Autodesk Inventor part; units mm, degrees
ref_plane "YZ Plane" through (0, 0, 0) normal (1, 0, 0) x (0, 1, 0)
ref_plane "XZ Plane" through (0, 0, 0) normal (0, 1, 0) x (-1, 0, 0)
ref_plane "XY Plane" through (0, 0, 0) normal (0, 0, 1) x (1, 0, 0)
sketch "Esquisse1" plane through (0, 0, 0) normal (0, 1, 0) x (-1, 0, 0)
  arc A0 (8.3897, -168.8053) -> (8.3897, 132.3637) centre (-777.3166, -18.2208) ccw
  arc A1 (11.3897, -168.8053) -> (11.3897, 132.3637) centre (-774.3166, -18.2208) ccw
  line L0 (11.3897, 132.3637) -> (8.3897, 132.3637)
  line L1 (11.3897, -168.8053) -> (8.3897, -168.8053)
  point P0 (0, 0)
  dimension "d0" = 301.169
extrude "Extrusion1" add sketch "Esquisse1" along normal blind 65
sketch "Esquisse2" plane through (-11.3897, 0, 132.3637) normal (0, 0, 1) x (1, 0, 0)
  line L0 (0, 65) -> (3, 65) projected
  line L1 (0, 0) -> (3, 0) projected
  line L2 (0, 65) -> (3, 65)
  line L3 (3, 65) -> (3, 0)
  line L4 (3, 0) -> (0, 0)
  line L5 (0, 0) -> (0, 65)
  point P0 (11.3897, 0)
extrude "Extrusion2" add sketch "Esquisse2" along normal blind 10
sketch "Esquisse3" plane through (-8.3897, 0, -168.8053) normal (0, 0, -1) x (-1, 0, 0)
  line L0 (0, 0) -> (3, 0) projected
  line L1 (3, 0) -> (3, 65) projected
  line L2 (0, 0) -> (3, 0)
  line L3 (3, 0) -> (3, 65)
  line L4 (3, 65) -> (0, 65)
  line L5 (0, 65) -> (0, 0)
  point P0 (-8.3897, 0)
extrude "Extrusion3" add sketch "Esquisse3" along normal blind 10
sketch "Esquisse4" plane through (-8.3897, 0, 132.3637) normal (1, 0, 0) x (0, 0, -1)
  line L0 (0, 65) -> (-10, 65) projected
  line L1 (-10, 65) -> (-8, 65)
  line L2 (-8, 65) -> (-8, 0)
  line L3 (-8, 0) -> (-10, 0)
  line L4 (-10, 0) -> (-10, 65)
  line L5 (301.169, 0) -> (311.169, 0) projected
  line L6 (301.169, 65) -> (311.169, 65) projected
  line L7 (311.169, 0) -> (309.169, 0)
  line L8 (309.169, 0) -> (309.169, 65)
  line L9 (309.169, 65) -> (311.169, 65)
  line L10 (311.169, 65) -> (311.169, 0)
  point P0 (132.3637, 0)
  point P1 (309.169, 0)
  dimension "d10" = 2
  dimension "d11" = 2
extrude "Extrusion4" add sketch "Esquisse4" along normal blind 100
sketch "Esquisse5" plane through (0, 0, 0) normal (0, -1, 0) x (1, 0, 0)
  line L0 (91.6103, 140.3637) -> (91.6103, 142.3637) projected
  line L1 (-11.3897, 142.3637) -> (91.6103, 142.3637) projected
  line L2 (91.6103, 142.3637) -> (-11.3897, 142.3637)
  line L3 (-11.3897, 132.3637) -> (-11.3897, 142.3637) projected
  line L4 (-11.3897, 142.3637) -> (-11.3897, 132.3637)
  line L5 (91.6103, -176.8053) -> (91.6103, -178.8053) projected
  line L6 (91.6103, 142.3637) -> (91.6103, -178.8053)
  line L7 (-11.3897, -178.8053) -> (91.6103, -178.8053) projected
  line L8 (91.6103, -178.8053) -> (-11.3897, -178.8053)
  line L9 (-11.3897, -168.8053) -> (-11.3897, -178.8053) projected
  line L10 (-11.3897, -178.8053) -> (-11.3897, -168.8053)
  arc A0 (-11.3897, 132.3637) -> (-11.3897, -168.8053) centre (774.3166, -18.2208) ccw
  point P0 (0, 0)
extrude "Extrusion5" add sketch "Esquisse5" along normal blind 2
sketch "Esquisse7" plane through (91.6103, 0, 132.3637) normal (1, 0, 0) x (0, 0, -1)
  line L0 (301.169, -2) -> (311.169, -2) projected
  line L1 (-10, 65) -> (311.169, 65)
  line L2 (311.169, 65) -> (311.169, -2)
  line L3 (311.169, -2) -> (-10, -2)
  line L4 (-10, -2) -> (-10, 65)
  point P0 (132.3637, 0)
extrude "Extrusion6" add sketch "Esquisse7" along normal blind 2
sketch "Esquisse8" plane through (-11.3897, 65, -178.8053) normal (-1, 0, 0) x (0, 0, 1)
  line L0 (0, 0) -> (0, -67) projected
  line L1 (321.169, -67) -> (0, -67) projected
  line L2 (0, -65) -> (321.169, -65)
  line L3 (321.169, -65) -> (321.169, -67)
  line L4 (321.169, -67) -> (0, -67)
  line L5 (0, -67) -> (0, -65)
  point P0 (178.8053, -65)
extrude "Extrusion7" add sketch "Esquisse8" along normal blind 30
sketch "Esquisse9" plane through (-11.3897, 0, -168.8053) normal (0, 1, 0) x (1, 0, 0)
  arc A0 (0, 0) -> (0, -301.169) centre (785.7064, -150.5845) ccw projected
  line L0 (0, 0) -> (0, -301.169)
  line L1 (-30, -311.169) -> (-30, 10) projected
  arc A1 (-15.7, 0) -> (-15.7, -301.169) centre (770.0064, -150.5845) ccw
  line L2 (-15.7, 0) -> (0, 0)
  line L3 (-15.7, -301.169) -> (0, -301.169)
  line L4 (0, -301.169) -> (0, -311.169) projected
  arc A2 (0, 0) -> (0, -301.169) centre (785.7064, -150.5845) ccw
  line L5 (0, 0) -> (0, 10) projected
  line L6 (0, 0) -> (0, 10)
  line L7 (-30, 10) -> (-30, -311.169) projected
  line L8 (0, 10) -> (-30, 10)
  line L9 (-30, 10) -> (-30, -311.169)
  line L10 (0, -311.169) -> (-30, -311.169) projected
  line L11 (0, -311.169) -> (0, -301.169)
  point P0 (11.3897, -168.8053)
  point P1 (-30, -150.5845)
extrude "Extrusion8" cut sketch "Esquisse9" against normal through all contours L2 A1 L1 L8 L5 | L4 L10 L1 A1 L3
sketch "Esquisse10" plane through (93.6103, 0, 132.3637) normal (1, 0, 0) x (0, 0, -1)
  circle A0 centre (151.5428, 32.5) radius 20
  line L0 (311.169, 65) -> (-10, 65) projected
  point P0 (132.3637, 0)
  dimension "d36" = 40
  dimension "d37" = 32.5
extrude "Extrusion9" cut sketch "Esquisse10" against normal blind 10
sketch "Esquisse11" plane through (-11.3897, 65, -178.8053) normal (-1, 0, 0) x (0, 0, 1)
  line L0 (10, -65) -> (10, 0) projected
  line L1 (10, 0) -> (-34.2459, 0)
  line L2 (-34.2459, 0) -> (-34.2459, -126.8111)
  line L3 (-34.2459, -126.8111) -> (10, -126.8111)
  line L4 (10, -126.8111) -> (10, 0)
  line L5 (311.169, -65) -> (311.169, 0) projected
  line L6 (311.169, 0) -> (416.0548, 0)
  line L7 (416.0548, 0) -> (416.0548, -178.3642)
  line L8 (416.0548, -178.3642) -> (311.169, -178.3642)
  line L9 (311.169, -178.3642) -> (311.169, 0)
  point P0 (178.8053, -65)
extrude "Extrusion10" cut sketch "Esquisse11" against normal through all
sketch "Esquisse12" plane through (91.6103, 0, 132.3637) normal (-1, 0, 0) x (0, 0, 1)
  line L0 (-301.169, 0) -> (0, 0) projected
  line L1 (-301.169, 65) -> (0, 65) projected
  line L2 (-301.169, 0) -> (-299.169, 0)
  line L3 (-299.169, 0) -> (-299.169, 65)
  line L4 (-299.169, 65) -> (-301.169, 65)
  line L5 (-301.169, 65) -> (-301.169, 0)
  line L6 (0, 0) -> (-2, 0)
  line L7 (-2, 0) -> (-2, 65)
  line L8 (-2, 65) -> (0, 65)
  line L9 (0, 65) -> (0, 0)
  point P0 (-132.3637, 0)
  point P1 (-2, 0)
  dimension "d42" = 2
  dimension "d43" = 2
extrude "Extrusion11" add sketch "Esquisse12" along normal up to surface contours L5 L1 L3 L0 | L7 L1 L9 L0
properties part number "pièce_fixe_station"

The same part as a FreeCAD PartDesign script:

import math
import FreeCAD as App
import Part
import Sketcher
from FreeCAD import Vector

doc = App.newDocument("Part")
body = doc.addObject("PartDesign::Body", "Body")

# Sketch on XZ plane
sketch1 = doc.addObject("Sketcher::SketchObject", "Sketch")
body.addObject(sketch1)
sketch1.AttachmentSupport = (doc.XZ_Plane, [""])
sketch1.MapMode = "FlatFace"
sketch1.addGeometry([
    Part.ArcOfCircle(Part.Circle(Vector(777.3, -18.2, 0), Vector(0, 0, 1), 800), math.radians(169), math.radians(191)),
    Part.LineSegment(Vector(-8.4, -168.8, 0), Vector(-11.4, -168.8, 0)),
    Part.ArcOfCircle(Part.Circle(Vector(774.3, -18.2, 0), Vector(0, 0, 1), 800), math.radians(169), math.radians(191)),
    Part.LineSegment(Vector(-11.4, 132.4, 0), Vector(-8.4, 132.4, 0)),
], False)
sketch1.addConstraint([
    Sketcher.Constraint("Coincident", 0, 2, 1, 1),
    Sketcher.Constraint("Coincident", 1, 2, 2, 2),
    Sketcher.Constraint("Coincident", 2, 1, 3, 1),
    Sketcher.Constraint("Coincident", 3, 2, 0, 1),
    Sketcher.Constraint("Horizontal", 1),
    Sketcher.Constraint("Horizontal", 3),
    Sketcher.Constraint("Equal", 0, 2),
    Sketcher.Constraint("Horizontal", 0, 3, 2, 3),
    Sketcher.Constraint("Vertical", 1, 2, 2, 1),
    Sketcher.Constraint("DistanceX", 1, 2, 1, 1, 3.0),
    Sketcher.Constraint("DistanceY", 1, 2, 3, 2, 301.169),
    Sketcher.Constraint("Radius", 0, 800.0063),
    Sketcher.Constraint("DistanceX", -1, 1, 0, 3, 777.3166),
    Sketcher.Constraint("DistanceY", 0, 3, -1, 1, 18.2208),
])
pad1 = doc.addObject("PartDesign::Pad", "Pad")
body.addObject(pad1)
pad1.Profile = sketch1
pad1.Length = 65
pad1.Reversed = True

# Sketch on XY plane
sketch2 = doc.addObject("Sketcher::SketchObject", "Sketch001")
body.addObject(sketch2)
sketch2.AttachmentSupport = (doc.XY_Plane, [""])
sketch2.MapMode = "FlatFace"
sketch2.AttachmentOffset = App.Placement(Vector(0, 0, 132.3637), App.Rotation())
sketch2.addGeometry([
    Part.LineSegment(Vector(-8.4, 65, 0), Vector(-11.4, 65, 0)),
    Part.LineSegment(Vector(-11.4, 65, 0), Vector(-11.4, 0, 0)),
    Part.LineSegment(Vector(-11.4, 0, 0), Vector(-8.4, 0, 0)),
    Part.LineSegment(Vector(-8.4, 0, 0), Vector(-8.4, 65, 0)),
], False)
sketch2.addConstraint([
    Sketcher.Constraint("Coincident", 0, 2, 1, 1),
    Sketcher.Constraint("Coincident", 1, 2, 2, 1),
    Sketcher.Constraint("Coincident", 2, 2, 3, 1),
    Sketcher.Constraint("Coincident", 3, 2, 0, 1),
    Sketcher.Constraint("Horizontal", 0),
    Sketcher.Constraint("Vertical", 1),
    Sketcher.Constraint("Horizontal", 2),
    Sketcher.Constraint("Vertical", 3),
    Sketcher.Constraint("PointOnObject", 1, 2, -1),
    Sketcher.Constraint("DistanceX", 0, 2, 0, 1, 3.0),
    Sketcher.Constraint("DistanceY", 1, 2, 1, 1, 65.0),
    Sketcher.Constraint("DistanceX", 0, 2, -1, 1, 11.3897),
])
pad2 = doc.addObject("PartDesign::Pad", "Pad001")
body.addObject(pad2)
pad2.Profile = sketch2
pad2.Length = 10

# Sketch on XY plane
sketch3 = doc.addObject("Sketcher::SketchObject", "Sketch002")
body.addObject(sketch3)
sketch3.AttachmentSupport = (doc.XY_Plane, [""])
sketch3.MapMode = "FlatFace"
sketch3.AttachmentOffset = App.Placement(Vector(0, 0, -168.8053), App.Rotation())
sketch3.addGeometry([
    Part.LineSegment(Vector(-8.4, 65, 0), Vector(-8.4, 0, 0)),
    Part.LineSegment(Vector(-8.4, 0, 0), Vector(-11.4, 0, 0)),
    Part.LineSegment(Vector(-11.4, 0, 0), Vector(-11.4, 65, 0)),
    Part.LineSegment(Vector(-11.4, 65, 0), Vector(-8.4, 65, 0)),
], False)
sketch3.addConstraint([
    Sketcher.Constraint("Coincident", 0, 2, 1, 1),
    Sketcher.Constraint("Coincident", 1, 2, 2, 1),
    Sketcher.Constraint("Coincident", 2, 2, 3, 1),
    Sketcher.Constraint("Coincident", 3, 2, 0, 1),
    Sketcher.Constraint("Vertical", 0),
    Sketcher.Constraint("Horizontal", 1),
    Sketcher.Constraint("Vertical", 2),
    Sketcher.Constraint("Horizontal", 3),
    Sketcher.Constraint("PointOnObject", 0, 2, -1),
    Sketcher.Constraint("DistanceX", 1, 2, 1, 1, 3.0),
    Sketcher.Constraint("DistanceY", 0, 2, 0, 1, 65.0),
    Sketcher.Constraint("DistanceX", 0, 2, -1, 1, 8.3897),
])
pad3 = doc.addObject("PartDesign::Pad", "Pad002")
body.addObject(pad3)
pad3.Profile = sketch3
pad3.Length = 10
pad3.Reversed = True

# Sketch on YZ plane
sketch4 = doc.addObject("Sketcher::SketchObject", "Sketch003")
body.addObject(sketch4)
sketch4.AttachmentSupport = (doc.YZ_Plane, [""])
sketch4.MapMode = "FlatFace"
sketch4.AttachmentOffset = App.Placement(Vector(0, 0, -8.3897), App.Rotation())
sketch4.addGeometry([
    Part.LineSegment(Vector(0, 140.4, 0), Vector(65, 140.4, 0)),  # 0
    Part.LineSegment(Vector(65, 140.4, 0), Vector(65, 142.4, 0)),  # 1
    Part.LineSegment(Vector(65, 142.4, 0), Vector(0, 142.4, 0)),  # 2
    Part.LineSegment(Vector(0, 142.4, 0), Vector(0, 140.4, 0)),  # 3
    Part.LineSegment(Vector(65, -176.8, 0), Vector(0, -176.8, 0)),  # 4
    Part.LineSegment(Vector(0, -176.8, 0), Vector(0, -178.8, 0)),  # 5
    Part.LineSegment(Vector(0, -178.8, 0), Vector(65, -178.8, 0)),  # 6
    Part.LineSegment(Vector(65, -178.8, 0), Vector(65, -176.8, 0)),  # 7
], False)
sketch4.addConstraint([
    Sketcher.Constraint("Coincident", 0, 2, 1, 1),
    Sketcher.Constraint("Coincident", 1, 2, 2, 1),
    Sketcher.Constraint("Coincident", 2, 2, 3, 1),
    Sketcher.Constraint("Coincident", 3, 2, 0, 1),
    Sketcher.Constraint("Coincident", 4, 2, 5, 1),
    Sketcher.Constraint("Coincident", 5, 2, 6, 1),
    Sketcher.Constraint("Coincident", 6, 2, 7, 1),
    Sketcher.Constraint("Coincident", 7, 2, 4, 1),
    Sketcher.Constraint("Horizontal", 0),
    Sketcher.Constraint("Vertical", 1),
    Sketcher.Constraint("Horizontal", 2),
    Sketcher.Constraint("Vertical", 3),
    Sketcher.Constraint("Horizontal", 4),
    Sketcher.Constraint("Vertical", 5),
    Sketcher.Constraint("Horizontal", 6),
    Sketcher.Constraint("Vertical", 7),
    Sketcher.Constraint("PointOnObject", 2, 2, -2),
    Sketcher.Constraint("PointOnObject", 4, 2, -2),
    Sketcher.Constraint("Vertical", 1, 2, 6, 2),
    Sketcher.Constraint("Equal", 3, 5),
    Sketcher.Constraint("DistanceY", 1, 1, 1, 2, 2.0),
    Sketcher.Constraint("DistanceX", 0, 1, 0, 2, 65.0),
    Sketcher.Constraint("DistanceY", 4, 2, 3, 2, 317.169),
    Sketcher.Constraint("DistanceY", -1, 1, 0, 2, 140.3637),
])
pad4 = doc.addObject("PartDesign::Pad", "Pad003")
body.addObject(pad4)
pad4.Profile = sketch4
pad4.Length = 100

# Sketch on XZ plane
sketch5 = doc.addObject("Sketcher::SketchObject", "Sketch004")
body.addObject(sketch5)
sketch5.AttachmentSupport = (doc.XZ_Plane, [""])
sketch5.MapMode = "FlatFace"
sketch5.addGeometry([
    Part.LineSegment(Vector(92, -179, 0), Vector(92, 142, 0)),  # 0
    Part.LineSegment(Vector(92, 142, 0), Vector(-11, 142, 0)),  # 1
    Part.LineSegment(Vector(-11, 142, 0), Vector(-11, 132, 0)),  # 2
    Part.ArcOfCircle(Part.Circle(Vector(774, -18, 0), Vector(0, 0, 1), 800), math.radians(169), math.radians(191)),  # 3
    Part.LineSegment(Vector(-11, -169, 0), Vector(-11, -179, 0)),  # 4
    Part.LineSegment(Vector(-11, -179, 0), Vector(92, -179, 0)),  # 5
], False)
sketch5.addConstraint([
    Sketcher.Constraint("Coincident", 0, 2, 1, 1),
    Sketcher.Constraint("Coincident", 1, 2, 2, 1),
    Sketcher.Constraint("Coincident", 2, 2, 3, 1),
    Sketcher.Constraint("Coincident", 3, 2, 4, 1),
    Sketcher.Constraint("Coincident", 4, 2, 5, 1),
    Sketcher.Constraint("Coincident", 5, 2, 0, 1),
    Sketcher.Constraint("Vertical", 0),
    Sketcher.Constraint("Horizontal", 1),
    Sketcher.Constraint("Vertical", 2),
    Sketcher.Constraint("Vertical", 4),
    Sketcher.Constraint("Horizontal", 5),
    Sketcher.Constraint("Vertical", 2, 2, 3, 2),
    Sketcher.Constraint("Equal", 2, 4),
    Sketcher.Constraint("DistanceX", 1, 2, 1, 1, 103.0),
    Sketcher.Constraint("DistanceY", 2, 2, 2, 1, 10.0),
    Sketcher.Constraint("Radius", 3, 800.0063),
    Sketcher.Constraint("DistanceY", 0, 1, 0, 2, 321.169),
    Sketcher.Constraint("DistanceX", -1, 1, 3, 3, 774.3166),
    Sketcher.Constraint("DistanceY", 3, 3, -1, 1, 18.2208),
])
pad5 = doc.addObject("PartDesign::Pad", "Pad004")
body.addObject(pad5)
pad5.Profile = sketch5
pad5.Length = 2

# Sketch on YZ plane
sketch6 = doc.addObject("Sketcher::SketchObject", "Sketch005")
body.addObject(sketch6)
sketch6.AttachmentSupport = (doc.YZ_Plane, [""])
sketch6.MapMode = "FlatFace"
sketch6.AttachmentOffset = App.Placement(Vector(0, 0, 91.6103), App.Rotation())
sketch6.addGeometry([
    Part.LineSegment(Vector(-2, 142, 0), Vector(-2, -179, 0)),
    Part.LineSegment(Vector(-2, -179, 0), Vector(65, -179, 0)),
    Part.LineSegment(Vector(65, -179, 0), Vector(65, 142, 0)),
    Part.LineSegment(Vector(65, 142, 0), Vector(-2, 142, 0)),
], False)
sketch6.addConstraint([
    Sketcher.Constraint("Coincident", 0, 2, 1, 1),
    Sketcher.Constraint("Coincident", 1, 2, 2, 1),
    Sketcher.Constraint("Coincident", 2, 2, 3, 1),
    Sketcher.Constraint("Coincident", 3, 2, 0, 1),
    Sketcher.Constraint("Vertical", 0),
    Sketcher.Constraint("Horizontal", 1),
    Sketcher.Constraint("Vertical", 2),
    Sketcher.Constraint("Horizontal", 3),
    Sketcher.Constraint("DistanceX", 1, 1, 1, 2, 67.0),
    Sketcher.Constraint("DistanceX", 0, 2, -1, 1, 2.0),
    Sketcher.Constraint("DistanceY", 0, 2, 0, 1, 321.169),
    Sketcher.Constraint("DistanceY", 0, 2, -1, 1, 178.8053),
])
pad6 = doc.addObject("PartDesign::Pad", "Pad005")
body.addObject(pad6)
pad6.Profile = sketch6
pad6.Length = 2

# Sketch on YZ plane
sketch7 = doc.addObject("Sketcher::SketchObject", "Sketch006")
body.addObject(sketch7)
sketch7.AttachmentSupport = (doc.YZ_Plane, [""])
sketch7.MapMode = "FlatFace"
sketch7.AttachmentOffset = App.Placement(Vector(0, 0, -11.3897), App.Rotation())
sketch7.addGeometry([
    Part.LineSegment(Vector(0, 142.4, 0), Vector(0, -178.8, 0)),
    Part.LineSegment(Vector(0, -178.8, 0), Vector(-2, -178.8, 0)),
    Part.LineSegment(Vector(-2, -178.8, 0), Vector(-2, 142.4, 0)),
    Part.LineSegment(Vector(-2, 142.4, 0), Vector(0, 142.4, 0)),
], False)
sketch7.addConstraint([
    Sketcher.Constraint("Coincident", 0, 2, 1, 1),
    Sketcher.Constraint("Coincident", 1, 2, 2, 1),
    Sketcher.Constraint("Coincident", 2, 2, 3, 1),
    Sketcher.Constraint("Coincident", 3, 2, 0, 1),
    Sketcher.Constraint("Vertical", 0),
    Sketcher.Constraint("Horizontal", 1),
    Sketcher.Constraint("Vertical", 2),
    Sketcher.Constraint("Horizontal", 3),
    Sketcher.Constraint("PointOnObject", 0, 2, -2),
    Sketcher.Constraint("DistanceX", 1, 2, 1, 1, 2.0),
    Sketcher.Constraint("DistanceY", 0, 2, 0, 1, 321.169),
    Sketcher.Constraint("DistanceY", 0, 2, -1, 1, 178.8053),
])
pad7 = doc.addObject("PartDesign::Pad", "Pad006")
body.addObject(pad7)
pad7.Profile = sketch7
pad7.Length = 30
pad7.Reversed = True

# Sketch on XZ plane
sketch8 = doc.addObject("Sketcher::SketchObject", "Sketch007")
body.addObject(sketch8)
sketch8.AttachmentSupport = (doc.XZ_Plane, [""])
sketch8.MapMode = "FlatFace"
sketch8.addGeometry([
    Part.LineSegment(Vector(-27, -169, 0), Vector(-11, -169, 0)),  # 0
    Part.LineSegment(Vector(-11, -169, 0), Vector(-11, -179, 0)),  # 1
    Part.LineSegment(Vector(-11, -179, 0), Vector(-41, -179, 0)),  # 2
    Part.LineSegment(Vector(-41, -179, 0), Vector(-41, -18, 0)),  # 3
    Part.ArcOfCircle(Part.Circle(Vector(759, -18, 0), Vector(0, 0, 1), 800), math.radians(180), math.radians(190.85)),  # 4
    Part.LineSegment(Vector(-11, 142, 0), Vector(-11, 132, 0)),  # 5
    Part.LineSegment(Vector(-11, 132, 0), Vector(-27, 132, 0)),  # 6
    Part.ArcOfCircle(Part.Circle(Vector(759, -18, 0), Vector(0, 0, 1), 800), math.radians(169.15), math.radians(180)),  # 7
    Part.LineSegment(Vector(-41, -18, 0), Vector(-41, 142, 0)),  # 8
    Part.LineSegment(Vector(-41, 142, 0), Vector(-11, 142, 0)),  # 9
], False)
sketch8.addConstraint([
    Sketcher.Constraint("Coincident", 0, 2, 1, 1),
    Sketcher.Constraint("Coincident", 1, 2, 2, 1),
    Sketcher.Constraint("Coincident", 2, 2, 3, 1),
    Sketcher.Constraint("Tangent", 3, 2, 4, 1),
    Sketcher.Constraint("Coincident", 4, 2, 0, 1),
    Sketcher.Constraint("Coincident", 5, 2, 6, 1),
    Sketcher.Constraint("Coincident", 6, 2, 7, 1),
    Sketcher.Constraint("Tangent", 7, 2, 8, 1),
    Sketcher.Constraint("Coincident", 8, 2, 9, 1),
    Sketcher.Constraint("Coincident", 9, 2, 5, 1),
    Sketcher.Constraint("Horizontal", 0),
    Sketcher.Constraint("Vertical", 1),
    Sketcher.Constraint("Horizontal", 2),
    Sketcher.Constraint("Vertical", 3),
    Sketcher.Constraint("Vertical", 5),
    Sketcher.Constraint("Horizontal", 6),
    Sketcher.Constraint("Vertical", 8),
    Sketcher.Constraint("Horizontal", 9),
    Sketcher.Constraint("Coincident", 7, 3, 4, 3),
    Sketcher.Constraint("Equal", 4, 7),
    Sketcher.Constraint("Vertical", 1, 2, 5, 2),
    Sketcher.Constraint("Equal", 0, 6),
    Sketcher.Constraint("Equal", 1, 5),
    Sketcher.Constraint("DistanceX", 2, 2, 2, 1, 30.0),
    Sketcher.Constraint("DistanceY", 1, 2, 1, 1, 10.0),
    Sketcher.Constraint("DistanceX", 0, 1, 0, 2, 15.7),
    Sketcher.Constraint("Radius", 4, 800.0064),
    Sketcher.Constraint("DistanceX", -1, 1, 4, 3, 758.6167),
    Sketcher.Constraint("DistanceY", 4, 3, -1, 1, 18.2208),
])
pocket1 = doc.addObject("PartDesign::Pocket", "Pocket")
body.addObject(pocket1)
pocket1.Profile = sketch8
pocket1.Type = "ThroughAll"
pocket1.Reversed = True

# Sketch on YZ plane
sketch9 = doc.addObject("Sketcher::SketchObject", "Sketch008")
body.addObject(sketch9)
sketch9.AttachmentSupport = (doc.YZ_Plane, [""])
sketch9.MapMode = "FlatFace"
sketch9.AttachmentOffset = App.Placement(Vector(0, 0, 93.6103), App.Rotation())
sketch9.addGeometry(Part.Circle(Vector(32, -19, 0), Vector(0, 0, 1), 20), False)
sketch9.addConstraint([
    Sketcher.Constraint("Diameter", 0, 40.0),
    Sketcher.Constraint("DistanceX", -1, 1, 0, 3, 32.5),
    Sketcher.Constraint("DistanceY", 0, 3, -1, 1, 19.179),
])
pocket2 = doc.addObject("PartDesign::Pocket", "Pocket001")
body.addObject(pocket2)
pocket2.Profile = sketch9
pocket2.Length = 10

# Sketch on YZ plane
sketch10 = doc.addObject("Sketcher::SketchObject", "Sketch009")
body.addObject(sketch10)
sketch10.AttachmentSupport = (doc.YZ_Plane, [""])
sketch10.MapMode = "FlatFace"
sketch10.AttachmentOffset = App.Placement(Vector(0, 0, -11.3897), App.Rotation())
sketch10.addGeometry([
    Part.LineSegment(Vector(-62, -169, 0), Vector(65, -169, 0)),  # 0
    Part.LineSegment(Vector(65, -169, 0), Vector(65, -213, 0)),  # 1
    Part.LineSegment(Vector(65, -213, 0), Vector(-62, -213, 0)),  # 2
    Part.LineSegment(Vector(-62, -213, 0), Vector(-62, -169, 0)),  # 3
    Part.LineSegment(Vector(65, 132, 0), Vector(-113, 132, 0)),  # 4
    Part.LineSegment(Vector(-113, 132, 0), Vector(-113, 237, 0)),  # 5
    Part.LineSegment(Vector(-113, 237, 0), Vector(65, 237, 0)),  # 6
    Part.LineSegment(Vector(65, 237, 0), Vector(65, 132, 0)),  # 7
], False)
sketch10.addConstraint([
    Sketcher.Constraint("Coincident", 0, 2, 1, 1),
    Sketcher.Constraint("Coincident", 1, 2, 2, 1),
    Sketcher.Constraint("Coincident", 2, 2, 3, 1),
    Sketcher.Constraint("Coincident", 3, 2, 0, 1),
    Sketcher.Constraint("Coincident", 4, 2, 5, 1),
    Sketcher.Constraint("Coincident", 5, 2, 6, 1),
    Sketcher.Constraint("Coincident", 6, 2, 7, 1),
    Sketcher.Constraint("Coincident", 7, 2, 4, 1),
    Sketcher.Constraint("Horizontal", 0),
    Sketcher.Constraint("Vertical", 1),
    Sketcher.Constraint("Horizontal", 2),
    Sketcher.Constraint("Vertical", 3),
    Sketcher.Constraint("Horizontal", 4),
    Sketcher.Constraint("Vertical", 5),
    Sketcher.Constraint("Horizontal", 6),
    Sketcher.Constraint("Vertical", 7),
    Sketcher.Constraint("Vertical", 1, 2, 6, 2),
    Sketcher.Constraint("DistanceX", -1, 1, 0, 2, 65.0),
    Sketcher.Constraint("DistanceX", 0, 1, 0, 2, 126.811),
    Sketcher.Constraint("DistanceY", 1, 2, 1, 1, 44.246),
    Sketcher.Constraint("DistanceX", 4, 2, 4, 1, 178.3642),
    Sketcher.Constraint("DistanceY", 5, 1, 5, 2, 104.8858),
    Sketcher.Constraint("DistanceY", 3, 2, 4, 2, 301.169),
    Sketcher.Constraint("DistanceY", 0, 2, -1, 1, 168.8053),
])
pocket3 = doc.addObject("PartDesign::Pocket", "Pocket002")
body.addObject(pocket3)
pocket3.Profile = sketch10
pocket3.Type = "ThroughAll"
pocket3.Reversed = True

# Sketch on YZ plane
sketch11 = doc.addObject("Sketcher::SketchObject", "Sketch010")
body.addObject(sketch11)
sketch11.AttachmentSupport = (doc.YZ_Plane, [""])
sketch11.MapMode = "FlatFace"
sketch11.AttachmentOffset = App.Placement(Vector(0, 0, 91.6103), App.Rotation())
sketch11.addGeometry([
    Part.LineSegment(Vector(65, -168.8, 0), Vector(0, -168.8, 0)),  # 0
    Part.LineSegment(Vector(0, -168.8, 0), Vector(0, -166.8, 0)),  # 1
    Part.LineSegment(Vector(0, -166.8, 0), Vector(65, -166.8, 0)),  # 2
    Part.LineSegment(Vector(65, -166.8, 0), Vector(65, -168.8, 0)),  # 3
    Part.LineSegment(Vector(65, 130.4, 0), Vector(0, 130.4, 0)),  # 4
    Part.LineSegment(Vector(0, 130.4, 0), Vector(0, 132.4, 0)),  # 5
    Part.LineSegment(Vector(0, 132.4, 0), Vector(65, 132.4, 0)),  # 6
    Part.LineSegment(Vector(65, 132.4, 0), Vector(65, 130.4, 0)),  # 7
], False)
sketch11.addConstraint([
    Sketcher.Constraint("Coincident", 0, 2, 1, 1),
    Sketcher.Constraint("Coincident", 1, 2, 2, 1),
    Sketcher.Constraint("Coincident", 2, 2, 3, 1),
    Sketcher.Constraint("Coincident", 3, 2, 0, 1),
    Sketcher.Constraint("Coincident", 4, 2, 5, 1),
    Sketcher.Constraint("Coincident", 5, 2, 6, 1),
    Sketcher.Constraint("Coincident", 6, 2, 7, 1),
    Sketcher.Constraint("Coincident", 7, 2, 4, 1),
    Sketcher.Constraint("Horizontal", 0),
    Sketcher.Constraint("Vertical", 1),
    Sketcher.Constraint("Horizontal", 2),
    Sketcher.Constraint("Vertical", 3),
    Sketcher.Constraint("Horizontal", 4),
    Sketcher.Constraint("Vertical", 5),
    Sketcher.Constraint("Horizontal", 6),
    Sketcher.Constraint("Vertical", 7),
    Sketcher.Constraint("PointOnObject", 0, 2, -2),
    Sketcher.Constraint("PointOnObject", 4, 2, -2),
    Sketcher.Constraint("Vertical", 3, 2, 6, 2),
    Sketcher.Constraint("Equal", 3, 5),
    Sketcher.Constraint("DistanceY", 1, 1, 1, 2, 2.0),
    Sketcher.Constraint("DistanceX", 0, 2, 0, 1, 65.0),
    Sketcher.Constraint("DistanceY", 1, 2, 4, 2, 297.169),
    Sketcher.Constraint("DistanceY", 0, 2, -1, 1, 168.8053),
])
pad8 = doc.addObject("PartDesign::Pad", "Pad007")
body.addObject(pad8)
pad8.Profile = sketch11
pad8.Type = "UpToFirst"
pad8.Reversed = True

doc.recompute()
